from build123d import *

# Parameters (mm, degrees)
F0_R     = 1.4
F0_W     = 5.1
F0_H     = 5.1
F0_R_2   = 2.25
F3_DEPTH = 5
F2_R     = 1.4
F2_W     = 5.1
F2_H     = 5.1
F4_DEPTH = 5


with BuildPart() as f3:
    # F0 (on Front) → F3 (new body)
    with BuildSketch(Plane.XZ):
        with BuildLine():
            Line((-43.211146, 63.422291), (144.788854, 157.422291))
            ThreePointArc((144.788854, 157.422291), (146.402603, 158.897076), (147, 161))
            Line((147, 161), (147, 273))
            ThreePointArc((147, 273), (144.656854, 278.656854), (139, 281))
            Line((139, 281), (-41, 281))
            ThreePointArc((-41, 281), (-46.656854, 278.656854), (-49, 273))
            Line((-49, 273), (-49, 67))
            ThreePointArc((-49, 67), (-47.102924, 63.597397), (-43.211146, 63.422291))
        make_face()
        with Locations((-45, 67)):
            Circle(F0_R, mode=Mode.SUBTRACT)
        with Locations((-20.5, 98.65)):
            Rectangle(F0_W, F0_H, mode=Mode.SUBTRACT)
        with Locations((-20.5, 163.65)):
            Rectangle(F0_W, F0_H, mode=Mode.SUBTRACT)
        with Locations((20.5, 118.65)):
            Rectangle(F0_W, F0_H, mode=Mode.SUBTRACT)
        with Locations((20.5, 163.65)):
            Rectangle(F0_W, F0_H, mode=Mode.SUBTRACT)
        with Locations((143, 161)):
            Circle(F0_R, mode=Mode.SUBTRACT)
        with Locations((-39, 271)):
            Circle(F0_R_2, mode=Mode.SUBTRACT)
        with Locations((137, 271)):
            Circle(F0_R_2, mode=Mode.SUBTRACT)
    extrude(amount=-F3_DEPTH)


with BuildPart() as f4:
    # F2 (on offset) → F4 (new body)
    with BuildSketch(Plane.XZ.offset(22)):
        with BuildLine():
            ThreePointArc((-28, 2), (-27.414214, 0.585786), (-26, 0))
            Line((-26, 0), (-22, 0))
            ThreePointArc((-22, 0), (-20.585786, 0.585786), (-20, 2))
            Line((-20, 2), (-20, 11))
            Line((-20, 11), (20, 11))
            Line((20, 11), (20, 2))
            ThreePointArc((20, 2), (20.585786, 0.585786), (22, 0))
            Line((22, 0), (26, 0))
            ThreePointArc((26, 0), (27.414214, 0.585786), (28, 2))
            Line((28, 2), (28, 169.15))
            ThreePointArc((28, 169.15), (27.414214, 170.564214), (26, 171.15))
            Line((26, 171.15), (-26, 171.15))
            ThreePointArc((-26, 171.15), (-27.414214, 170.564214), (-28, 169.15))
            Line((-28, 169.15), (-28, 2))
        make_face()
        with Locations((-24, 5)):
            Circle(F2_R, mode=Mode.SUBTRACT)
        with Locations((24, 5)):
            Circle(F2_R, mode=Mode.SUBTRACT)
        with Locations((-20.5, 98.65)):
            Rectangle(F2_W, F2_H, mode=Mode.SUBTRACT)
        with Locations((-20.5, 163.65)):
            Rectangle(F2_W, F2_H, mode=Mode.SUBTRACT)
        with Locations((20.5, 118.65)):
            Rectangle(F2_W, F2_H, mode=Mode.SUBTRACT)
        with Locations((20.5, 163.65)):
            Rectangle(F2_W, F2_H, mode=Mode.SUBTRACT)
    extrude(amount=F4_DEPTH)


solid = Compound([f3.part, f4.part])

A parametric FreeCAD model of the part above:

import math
import FreeCAD as App
import Part
import Sketcher

doc = App.newDocument("Part")
body = doc.addObject("PartDesign::Body", "Body")

# Sketch on XZ plane
sketch1 = doc.addObject("Sketcher::SketchObject", "Sketch")
body.addObject(sketch1)
sketch1.AttachmentSupport = (doc.XZ_Plane, [""])
sketch1.MapMode = "FlatFace"
sketch1.addGeometry([
    Part.LineSegment(App.Vector(-43.2, 63.4, 0), App.Vector(144.8, 157.4, 0)),  # 0
    Part.ArcOfCircle(Part.Circle(App.Vector(143, 161, 0), App.Vector(0, 0, 1), 4), math.radians(-63), math.radians(0)),  # 1
    Part.LineSegment(App.Vector(147, 161, 0), App.Vector(147, 273, 0)),  # 2
    Part.ArcOfCircle(Part.Circle(App.Vector(139, 273, 0), App.Vector(0, 0, 1), 8), math.radians(0), math.radians(90)),  # 3
    Part.LineSegment(App.Vector(139, 281, 0), App.Vector(-41, 281, 0)),  # 4
    Part.ArcOfCircle(Part.Circle(App.Vector(-41, 273, 0), App.Vector(0, 0, 1), 8), math.radians(90), math.radians(180)),  # 5
    Part.LineSegment(App.Vector(-49, 273, 0), App.Vector(-49, 67, 0)),  # 6
    Part.ArcOfCircle(Part.Circle(App.Vector(-45, 67, 0), App.Vector(0, 0, 1), 4), math.radians(-180), math.radians(-63)),  # 7
    Part.Circle(App.Vector(-45, 67, 0), App.Vector(0, 0, 1), 1.4),  # 8
    Part.LineSegment(App.Vector(-17.9, 96.1, 0), App.Vector(-23.1, 96.1, 0)),  # 9
    Part.LineSegment(App.Vector(-23.1, 96.1, 0), App.Vector(-23.1, 101.2, 0)),  # 10
    Part.LineSegment(App.Vector(-23.1, 101.2, 0), App.Vector(-17.9, 101.2, 0)),  # 11
    Part.LineSegment(App.Vector(-17.9, 101.2, 0), App.Vector(-17.9, 96.1, 0)),  # 12
    Part.LineSegment(App.Vector(-17.9, 161.1, 0), App.Vector(-23.1, 161.1, 0)),  # 13
    Part.LineSegment(App.Vector(-23.1, 161.1, 0), App.Vector(-23.1, 166.2, 0)),  # 14
    Part.LineSegment(App.Vector(-23.1, 166.2, 0), App.Vector(-17.9, 166.2, 0)),  # 15
    Part.LineSegment(App.Vector(-17.9, 166.2, 0), App.Vector(-17.9, 161.1, 0)),  # 16
    Part.LineSegment(App.Vector(23.1, 116.1, 0), App.Vector(17.9, 116.1, 0)),  # 17
    Part.LineSegment(App.Vector(17.9, 116.1, 0), App.Vector(17.9, 121.2, 0)),  # 18
    Part.LineSegment(App.Vector(17.9, 121.2, 0), App.Vector(23.1, 121.2, 0)),  # 19
    Part.LineSegment(App.Vector(23.1, 121.2, 0), App.Vector(23.1, 116.1, 0)),  # 20
    Part.LineSegment(App.Vector(23.1, 161.1, 0), App.Vector(17.9, 161.1, 0)),  # 21
    Part.LineSegment(App.Vector(17.9, 161.1, 0), App.Vector(17.9, 166.2, 0)),  # 22
    Part.LineSegment(App.Vector(17.9, 166.2, 0), App.Vector(23.1, 166.2, 0)),  # 23
    Part.LineSegment(App.Vector(23.1, 166.2, 0), App.Vector(23.1, 161.1, 0)),  # 24
    Part.Circle(App.Vector(143, 161, 0), App.Vector(0, 0, 1), 1.4),  # 25
    Part.Circle(App.Vector(-39, 271, 0), App.Vector(0, 0, 1), 2.2),  # 26
    Part.Circle(App.Vector(137, 271, 0), App.Vector(0, 0, 1), 2.2),  # 27
], False)
sketch1.addConstraint([
    Sketcher.Constraint("Tangent", 0, 2, 1, 1),
    Sketcher.Constraint("Tangent", 1, 2, 2, 1),
    Sketcher.Constraint("Tangent", 2, 2, 3, 1),
    Sketcher.Constraint("Tangent", 3, 2, 4, 1),
    Sketcher.Constraint("Tangent", 4, 2, 5, 1),
    Sketcher.Constraint("Tangent", 5, 2, 6, 1),
    Sketcher.Constraint("Tangent", 6, 2, 7, 1),
    Sketcher.Constraint("Tangent", 7, 2, 0, 1),
    Sketcher.Constraint("Coincident", 9, 2, 10, 1),
    Sketcher.Constraint("Coincident", 10, 2, 11, 1),
    Sketcher.Constraint("Coincident", 11, 2, 12, 1),
    Sketcher.Constraint("Coincident", 12, 2, 9, 1),
    Sketcher.Constraint("Coincident", 13, 2, 14, 1),
    Sketcher.Constraint("Coincident", 14, 2, 15, 1),
    Sketcher.Constraint("Coincident", 15, 2, 16, 1),
    Sketcher.Constraint("Coincident", 16, 2, 13, 1),
    Sketcher.Constraint("Coincident", 17, 2, 18, 1),
    Sketcher.Constraint("Coincident", 18, 2, 19, 1),
    Sketcher.Constraint("Coincident", 19, 2, 20, 1),
    Sketcher.Constraint("Coincident", 20, 2, 17, 1),
    Sketcher.Constraint("Coincident", 21, 2, 22, 1),
    Sketcher.Constraint("Coincident", 22, 2, 23, 1),
    Sketcher.Constraint("Coincident", 23, 2, 24, 1),
    Sketcher.Constraint("Coincident", 24, 2, 21, 1),
    Sketcher.Constraint("Vertical", 2),
    Sketcher.Constraint("Horizontal", 4),
    Sketcher.Constraint("Vertical", 6),
    Sketcher.Constraint("Horizontal", 9),
    Sketcher.Constraint("Vertical", 10),
    Sketcher.Constraint("Horizontal", 11),
    Sketcher.Constraint("Vertical", 12),
    Sketcher.Constraint("Horizontal", 13),
    Sketcher.Constraint("Vertical", 14),
    Sketcher.Constraint("Horizontal", 15),
    Sketcher.Constraint("Vertical", 16),
    Sketcher.Constraint("Horizontal", 17),
    Sketcher.Constraint("Vertical", 18),
    Sketcher.Constraint("Horizontal", 19),
    Sketcher.Constraint("Vertical", 20),
    Sketcher.Constraint("Horizontal", 21),
    Sketcher.Constraint("Vertical", 22),
    Sketcher.Constraint("Horizontal", 23),
    Sketcher.Constraint("Vertical", 24),
    Sketcher.Constraint("Coincident", 8, 3, 7, 3),
    Sketcher.Constraint("Coincident", 25, 3, 1, 3),
    Sketcher.Constraint("Equal", 3, 5),
    Sketcher.Constraint("Equal", 8, 25),
    Sketcher.Constraint("Equal", 26, 27),
    Sketcher.Constraint("Symmetric", 16, 2, 21, 2, -2),
    Sketcher.Constraint("Symmetric", 14, 2, 23, 2, -2),
    Sketcher.Constraint("Horizontal", 26, 3, 27, 3),
    Sketcher.Constraint("Vertical", 10, 2, 13, 2),
    Sketcher.Constraint("Vertical", 12, 2, 15, 2),
    Sketcher.Constraint("Vertical", 18, 2, 21, 2),
    Sketcher.Constraint("Vertical", 20, 2, 23, 2),
    Sketcher.Constraint("Equal", 23, 10),
    Sketcher.Constraint("Equal", 12, 14),
    Sketcher.Constraint("Equal", 16, 18),
    Sketcher.Constraint("Radius", 3, 8.000001),
    Sketcher.Constraint("Radius", 7, 4.000001),
    Sketcher.Constraint("Diameter", 8, 2.8),
    Sketcher.Constraint("Diameter", 26, 4.5),
    Sketcher.Constraint("DistanceX", 4, 2, 4, 1, 180.0),
    Sketcher.Constraint("DistanceY", 2, 1, 2, 2, 112.0),
    Sketcher.Constraint("DistanceY", 6, 2, 6, 1, 206.0),
    Sketcher.Constraint("DistanceX", 9, 2, 9, 1, 5.1),
    Sketcher.Constraint("DistanceY", -1, 1, 1, 3, 161.000002),
    Sketcher.Constraint("DistanceX", -1, 1, 3, 3, 138.999999),
    Sketcher.Constraint("DistanceX", -1, 1, 25, 3, 143.0),
    Sketcher.Constraint("DistanceX", 26, 3, -1, 1, 39.0),
    Sketcher.Constraint("DistanceY", -1, 1, 26, 3, 271.0),
    Sketcher.Constraint("DistanceX", -1, 1, 27, 3, 137.0),
    Sketcher.Constraint("DistanceY", 9, 2, 13, 2, 65.0),
    Sketcher.Constraint("DistanceY", 12, 2, 17, 2, 20.0),
    Sketcher.Constraint("DistanceX", 10, 2, 17, 2, 41.0),
    Sketcher.Constraint("DistanceY", -1, 1, 9, 2, 96.1),
])
pad1 = doc.addObject("PartDesign::Pad", "Pad")
body.addObject(pad1)
pad1.Profile = sketch1
pad1.Length = 5
pad1.Reversed = True
body2 = doc.addObject("PartDesign::Body", "Body001")

# Sketch on XZ plane
sketch2 = doc.addObject("Sketcher::SketchObject", "Sketch001")
body2.addObject(sketch2)
sketch2.AttachmentSupport = (doc.getObject("XZ_Plane001"), [""])
sketch2.MapMode = "FlatFace"
sketch2.AttachmentOffset = App.Placement(App.Vector(0, 0, 22), App.Rotation())
sketch2.addGeometry([
    Part.ArcOfCircle(Part.Circle(App.Vector(-26, 2, 0), App.Vector(0, 0, 1), 2), math.radians(180), math.radians(270)),  # 0
    Part.LineSegment(App.Vector(-26, 0, 0), App.Vector(-22, 0, 0)),  # 1
    Part.ArcOfCircle(Part.Circle(App.Vector(-22, 2, 0), App.Vector(0, 0, 1), 2), math.radians(-90), math.radians(0)),  # 2
    Part.LineSegment(App.Vector(-20, 2, 0), App.Vector(-20, 11, 0)),  # 3
    Part.LineSegment(App.Vector(-20, 11, 0), App.Vector(20, 11, 0)),  # 4
    Part.LineSegment(App.Vector(20, 11, 0), App.Vector(20, 2, 0)),  # 5
    Part.ArcOfCircle(Part.Circle(App.Vector(22, 2, 0), App.Vector(0, 0, 1), 2), math.radians(180), math.radians(270)),  # 6
    Part.LineSegment(App.Vector(22, 0, 0), App.Vector(26, 0, 0)),  # 7
    Part.ArcOfCircle(Part.Circle(App.Vector(26, 2, 0), App.Vector(0, 0, 1), 2), math.radians(-90), math.radians(0)),  # 8
    Part.LineSegment(App.Vector(28, 2, 0), App.Vector(28, 169.2, 0)),  # 9
    Part.ArcOfCircle(Part.Circle(App.Vector(26, 169.2, 0), App.Vector(0, 0, 1), 2), math.radians(0), math.radians(90)),  # 10
    Part.LineSegment(App.Vector(26, 171.2, 0), App.Vector(-26, 171.2, 0)),  # 11
    Part.ArcOfCircle(Part.Circle(App.Vector(-26, 169.2, 0), App.Vector(0, 0, 1), 2), math.radians(90), math.radians(180)),  # 12
    Part.LineSegment(App.Vector(-28, 169.2, 0), App.Vector(-28, 2, 0)),  # 13
    Part.Circle(App.Vector(-24, 5, 0), App.Vector(0, 0, 1), 1.4),  # 14
    Part.Circle(App.Vector(24, 5, 0), App.Vector(0, 0, 1), 1.4),  # 15
    Part.LineSegment(App.Vector(-17.9, 96.1, 0), App.Vector(-23.1, 96.1, 0)),  # 16
    Part.LineSegment(App.Vector(-23.1, 96.1, 0), App.Vector(-23.1, 101.2, 0)),  # 17
    Part.LineSegment(App.Vector(-23.1, 101.2, 0), App.Vector(-17.9, 101.2, 0)),  # 18
    Part.LineSegment(App.Vector(-17.9, 101.2, 0), App.Vector(-17.9, 96.1, 0)),  # 19
    Part.LineSegment(App.Vector(-17.9, 161.1, 0), App.Vector(-23.1, 161.1, 0)),  # 20
    Part.LineSegment(App.Vector(-23.1, 161.1, 0), App.Vector(-23.1, 166.2, 0)),  # 21
    Part.LineSegment(App.Vector(-23.1, 166.2, 0), App.Vector(-17.9, 166.2, 0)),  # 22
    Part.LineSegment(App.Vector(-17.9, 166.2, 0), App.Vector(-17.9, 161.1, 0)),  # 23
    Part.LineSegment(App.Vector(23.1, 116.1, 0), App.Vector(17.9, 116.1, 0)),  # 24
    Part.LineSegment(App.Vector(17.9, 116.1, 0), App.Vector(17.9, 121.2, 0)),  # 25
    Part.LineSegment(App.Vector(17.9, 121.2, 0), App.Vector(23.1, 121.2, 0)),  # 26
    Part.LineSegment(App.Vector(23.1, 121.2, 0), App.Vector(23.1, 116.1, 0)),  # 27
    Part.LineSegment(App.Vector(23.1, 161.1, 0), App.Vector(17.9, 161.1, 0)),  # 28
    Part.LineSegment(App.Vector(17.9, 161.1, 0), App.Vector(17.9, 166.2, 0)),  # 29
    Part.LineSegment(App.Vector(17.9, 166.2, 0), App.Vector(23.1, 166.2, 0)),  # 30
    Part.LineSegment(App.Vector(23.1, 166.2, 0), App.Vector(23.1, 161.1, 0)),  # 31
], False)
sketch2.addConstraint([
    Sketcher.Constraint("Tangent", 0, 2, 1, 1),
    Sketcher.Constraint("Tangent", 1, 2, 2, 1),
    Sketcher.Constraint("Tangent", 2, 2, 3, 1),
    Sketcher.Constraint("Coincident", 3, 2, 4, 1),
    Sketcher.Constraint("Coincident", 4, 2, 5, 1),
    Sketcher.Constraint("Tangent", 5, 2, 6, 1),
    Sketcher.Constraint("Tangent", 6, 2, 7, 1),
    Sketcher.Constraint("Tangent", 7, 2, 8, 1),
    Sketcher.Constraint("Tangent", 8, 2, 9, 1),
    Sketcher.Constraint("Tangent", 9, 2, 10, 1),
    Sketcher.Constraint("Tangent", 10, 2, 11, 1),
    Sketcher.Constraint("Tangent", 11, 2, 12, 1),
    Sketcher.Constraint("Tangent", 12, 2, 13, 1),
    Sketcher.Constraint("Tangent", 13, 2, 0, 1),
    Sketcher.Constraint("Coincident", 16, 2, 17, 1),
    Sketcher.Constraint("Coincident", 17, 2, 18, 1),
    Sketcher.Constraint("Coincident", 18, 2, 19, 1),
    Sketcher.Constraint("Coincident", 19, 2, 16, 1),
    Sketcher.Constraint("Coincident", 20, 2, 21, 1),
    Sketcher.Constraint("Coincident", 21, 2, 22, 1),
    Sketcher.Constraint("Coincident", 22, 2, 23, 1),
    Sketcher.Constraint("Coincident", 23, 2, 20, 1),
    Sketcher.Constraint("Coincident", 24, 2, 25, 1),
    Sketcher.Constraint("Coincident", 25, 2, 26, 1),
    Sketcher.Constraint("Coincident", 26, 2, 27, 1),
    Sketcher.Constraint("Coincident", 27, 2, 24, 1),
    Sketcher.Constraint("Coincident", 28, 2, 29, 1),
    Sketcher.Constraint("Coincident", 29, 2, 30, 1),
    Sketcher.Constraint("Coincident", 30, 2, 31, 1),
    Sketcher.Constraint("Coincident", 31, 2, 28, 1),
    Sketcher.Constraint("Horizontal", 1),
    Sketcher.Constraint("Vertical", 3),
    Sketcher.Constraint("Horizontal", 4),
    Sketcher.Constraint("Vertical", 5),
    Sketcher.Constraint("Horizontal", 7),
    Sketcher.Constraint("Vertical", 9),
    Sketcher.Constraint("Horizontal", 11),
    Sketcher.Constraint("Vertical", 13),
    Sketcher.Constraint("Horizontal", 16),
    Sketcher.Constraint("Vertical", 17),
    Sketcher.Constraint("Horizontal", 18),
    Sketcher.Constraint("Vertical", 19),
    Sketcher.Constraint("Horizontal", 20),
    Sketcher.Constraint("Vertical", 21),
    Sketcher.Constraint("Horizontal", 22),
    Sketcher.Constraint("Vertical", 23),
    Sketcher.Constraint("Horizontal", 24),
    Sketcher.Constraint("Vertical", 25),
    Sketcher.Constraint("Horizontal", 26),
    Sketcher.Constraint("Vertical", 27),
    Sketcher.Constraint("Horizontal", 28),
    Sketcher.Constraint("Vertical", 29),
    Sketcher.Constraint("Horizontal", 30),
    Sketcher.Constraint("Vertical", 31),
    Sketcher.Constraint("Equal", 0, 2),
    Sketcher.Constraint("Equal", 2, 6),
    Sketcher.Constraint("Equal", 6, 8),
    Sketcher.Constraint("Equal", 8, 10),
    Sketcher.Constraint("Equal", 10, 12),
    Sketcher.Constraint("Equal", 14, 15),
    Sketcher.Constraint("Symmetric", 1, 2, 6, 2, -1, 1),
    Sketcher.Constraint("Symmetric", 0, 3, 8, 3, -2),
    Sketcher.Constraint("Symmetric", 14, 3, 15, 3, -2),
    Sketcher.Constraint("Symmetric", 23, 2, 28, 2, -2),
    Sketcher.Constraint("Symmetric", 21, 2, 30, 2, -2),
    Sketcher.Constraint("Vertical", 17, 2, 20, 2),
    Sketcher.Constraint("Vertical", 19, 2, 22, 2),
    Sketcher.Constraint("Vertical", 25, 2, 28, 2),
    Sketcher.Constraint("Vertical", 27, 2, 30, 2),
    Sketcher.Constraint("Equal", 30, 17),
    Sketcher.Constraint("Equal", 19, 21),
    Sketcher.Constraint("Equal", 23, 25),
    Sketcher.Constraint("Radius", 0, 1.999999),
    Sketcher.Constraint("Diameter", 14, 2.8),
    Sketcher.Constraint("DistanceX", 1, 1, 1, 2, 4.0),
    Sketcher.Constraint("DistanceX", 4, 1, 4, 2, 40.0),
    Sketcher.Constraint("DistanceY", 3, 1, 3, 2, 9.0),
    Sketcher.Constraint("DistanceX", 16, 2, 16, 1, 5.1),
    Sketcher.Constraint("DistanceX", 14, 3, -1, 1, 24.0),
    Sketcher.Constraint("DistanceY", -1, 1, 14, 3, 5.0),
    Sketcher.Constraint("DistanceY", 19, 2, 24, 2, 20.0),
    Sketcher.Constraint("DistanceX", 17, 2, 24, 2, 41.0),
    Sketcher.Constraint("DistanceY", 9, 1, 9, 2, 167.15),
    Sketcher.Constraint("DistanceY", -1, 1, 16, 2, 96.1),
    Sketcher.Constraint("DistanceY", -1, 1, 20, 2, 161.1),
])
pad2 = doc.addObject("PartDesign::Pad", "Pad001")
body2.addObject(pad2)
pad2.Profile = sketch2
pad2.Length = 5

doc.recompute()
